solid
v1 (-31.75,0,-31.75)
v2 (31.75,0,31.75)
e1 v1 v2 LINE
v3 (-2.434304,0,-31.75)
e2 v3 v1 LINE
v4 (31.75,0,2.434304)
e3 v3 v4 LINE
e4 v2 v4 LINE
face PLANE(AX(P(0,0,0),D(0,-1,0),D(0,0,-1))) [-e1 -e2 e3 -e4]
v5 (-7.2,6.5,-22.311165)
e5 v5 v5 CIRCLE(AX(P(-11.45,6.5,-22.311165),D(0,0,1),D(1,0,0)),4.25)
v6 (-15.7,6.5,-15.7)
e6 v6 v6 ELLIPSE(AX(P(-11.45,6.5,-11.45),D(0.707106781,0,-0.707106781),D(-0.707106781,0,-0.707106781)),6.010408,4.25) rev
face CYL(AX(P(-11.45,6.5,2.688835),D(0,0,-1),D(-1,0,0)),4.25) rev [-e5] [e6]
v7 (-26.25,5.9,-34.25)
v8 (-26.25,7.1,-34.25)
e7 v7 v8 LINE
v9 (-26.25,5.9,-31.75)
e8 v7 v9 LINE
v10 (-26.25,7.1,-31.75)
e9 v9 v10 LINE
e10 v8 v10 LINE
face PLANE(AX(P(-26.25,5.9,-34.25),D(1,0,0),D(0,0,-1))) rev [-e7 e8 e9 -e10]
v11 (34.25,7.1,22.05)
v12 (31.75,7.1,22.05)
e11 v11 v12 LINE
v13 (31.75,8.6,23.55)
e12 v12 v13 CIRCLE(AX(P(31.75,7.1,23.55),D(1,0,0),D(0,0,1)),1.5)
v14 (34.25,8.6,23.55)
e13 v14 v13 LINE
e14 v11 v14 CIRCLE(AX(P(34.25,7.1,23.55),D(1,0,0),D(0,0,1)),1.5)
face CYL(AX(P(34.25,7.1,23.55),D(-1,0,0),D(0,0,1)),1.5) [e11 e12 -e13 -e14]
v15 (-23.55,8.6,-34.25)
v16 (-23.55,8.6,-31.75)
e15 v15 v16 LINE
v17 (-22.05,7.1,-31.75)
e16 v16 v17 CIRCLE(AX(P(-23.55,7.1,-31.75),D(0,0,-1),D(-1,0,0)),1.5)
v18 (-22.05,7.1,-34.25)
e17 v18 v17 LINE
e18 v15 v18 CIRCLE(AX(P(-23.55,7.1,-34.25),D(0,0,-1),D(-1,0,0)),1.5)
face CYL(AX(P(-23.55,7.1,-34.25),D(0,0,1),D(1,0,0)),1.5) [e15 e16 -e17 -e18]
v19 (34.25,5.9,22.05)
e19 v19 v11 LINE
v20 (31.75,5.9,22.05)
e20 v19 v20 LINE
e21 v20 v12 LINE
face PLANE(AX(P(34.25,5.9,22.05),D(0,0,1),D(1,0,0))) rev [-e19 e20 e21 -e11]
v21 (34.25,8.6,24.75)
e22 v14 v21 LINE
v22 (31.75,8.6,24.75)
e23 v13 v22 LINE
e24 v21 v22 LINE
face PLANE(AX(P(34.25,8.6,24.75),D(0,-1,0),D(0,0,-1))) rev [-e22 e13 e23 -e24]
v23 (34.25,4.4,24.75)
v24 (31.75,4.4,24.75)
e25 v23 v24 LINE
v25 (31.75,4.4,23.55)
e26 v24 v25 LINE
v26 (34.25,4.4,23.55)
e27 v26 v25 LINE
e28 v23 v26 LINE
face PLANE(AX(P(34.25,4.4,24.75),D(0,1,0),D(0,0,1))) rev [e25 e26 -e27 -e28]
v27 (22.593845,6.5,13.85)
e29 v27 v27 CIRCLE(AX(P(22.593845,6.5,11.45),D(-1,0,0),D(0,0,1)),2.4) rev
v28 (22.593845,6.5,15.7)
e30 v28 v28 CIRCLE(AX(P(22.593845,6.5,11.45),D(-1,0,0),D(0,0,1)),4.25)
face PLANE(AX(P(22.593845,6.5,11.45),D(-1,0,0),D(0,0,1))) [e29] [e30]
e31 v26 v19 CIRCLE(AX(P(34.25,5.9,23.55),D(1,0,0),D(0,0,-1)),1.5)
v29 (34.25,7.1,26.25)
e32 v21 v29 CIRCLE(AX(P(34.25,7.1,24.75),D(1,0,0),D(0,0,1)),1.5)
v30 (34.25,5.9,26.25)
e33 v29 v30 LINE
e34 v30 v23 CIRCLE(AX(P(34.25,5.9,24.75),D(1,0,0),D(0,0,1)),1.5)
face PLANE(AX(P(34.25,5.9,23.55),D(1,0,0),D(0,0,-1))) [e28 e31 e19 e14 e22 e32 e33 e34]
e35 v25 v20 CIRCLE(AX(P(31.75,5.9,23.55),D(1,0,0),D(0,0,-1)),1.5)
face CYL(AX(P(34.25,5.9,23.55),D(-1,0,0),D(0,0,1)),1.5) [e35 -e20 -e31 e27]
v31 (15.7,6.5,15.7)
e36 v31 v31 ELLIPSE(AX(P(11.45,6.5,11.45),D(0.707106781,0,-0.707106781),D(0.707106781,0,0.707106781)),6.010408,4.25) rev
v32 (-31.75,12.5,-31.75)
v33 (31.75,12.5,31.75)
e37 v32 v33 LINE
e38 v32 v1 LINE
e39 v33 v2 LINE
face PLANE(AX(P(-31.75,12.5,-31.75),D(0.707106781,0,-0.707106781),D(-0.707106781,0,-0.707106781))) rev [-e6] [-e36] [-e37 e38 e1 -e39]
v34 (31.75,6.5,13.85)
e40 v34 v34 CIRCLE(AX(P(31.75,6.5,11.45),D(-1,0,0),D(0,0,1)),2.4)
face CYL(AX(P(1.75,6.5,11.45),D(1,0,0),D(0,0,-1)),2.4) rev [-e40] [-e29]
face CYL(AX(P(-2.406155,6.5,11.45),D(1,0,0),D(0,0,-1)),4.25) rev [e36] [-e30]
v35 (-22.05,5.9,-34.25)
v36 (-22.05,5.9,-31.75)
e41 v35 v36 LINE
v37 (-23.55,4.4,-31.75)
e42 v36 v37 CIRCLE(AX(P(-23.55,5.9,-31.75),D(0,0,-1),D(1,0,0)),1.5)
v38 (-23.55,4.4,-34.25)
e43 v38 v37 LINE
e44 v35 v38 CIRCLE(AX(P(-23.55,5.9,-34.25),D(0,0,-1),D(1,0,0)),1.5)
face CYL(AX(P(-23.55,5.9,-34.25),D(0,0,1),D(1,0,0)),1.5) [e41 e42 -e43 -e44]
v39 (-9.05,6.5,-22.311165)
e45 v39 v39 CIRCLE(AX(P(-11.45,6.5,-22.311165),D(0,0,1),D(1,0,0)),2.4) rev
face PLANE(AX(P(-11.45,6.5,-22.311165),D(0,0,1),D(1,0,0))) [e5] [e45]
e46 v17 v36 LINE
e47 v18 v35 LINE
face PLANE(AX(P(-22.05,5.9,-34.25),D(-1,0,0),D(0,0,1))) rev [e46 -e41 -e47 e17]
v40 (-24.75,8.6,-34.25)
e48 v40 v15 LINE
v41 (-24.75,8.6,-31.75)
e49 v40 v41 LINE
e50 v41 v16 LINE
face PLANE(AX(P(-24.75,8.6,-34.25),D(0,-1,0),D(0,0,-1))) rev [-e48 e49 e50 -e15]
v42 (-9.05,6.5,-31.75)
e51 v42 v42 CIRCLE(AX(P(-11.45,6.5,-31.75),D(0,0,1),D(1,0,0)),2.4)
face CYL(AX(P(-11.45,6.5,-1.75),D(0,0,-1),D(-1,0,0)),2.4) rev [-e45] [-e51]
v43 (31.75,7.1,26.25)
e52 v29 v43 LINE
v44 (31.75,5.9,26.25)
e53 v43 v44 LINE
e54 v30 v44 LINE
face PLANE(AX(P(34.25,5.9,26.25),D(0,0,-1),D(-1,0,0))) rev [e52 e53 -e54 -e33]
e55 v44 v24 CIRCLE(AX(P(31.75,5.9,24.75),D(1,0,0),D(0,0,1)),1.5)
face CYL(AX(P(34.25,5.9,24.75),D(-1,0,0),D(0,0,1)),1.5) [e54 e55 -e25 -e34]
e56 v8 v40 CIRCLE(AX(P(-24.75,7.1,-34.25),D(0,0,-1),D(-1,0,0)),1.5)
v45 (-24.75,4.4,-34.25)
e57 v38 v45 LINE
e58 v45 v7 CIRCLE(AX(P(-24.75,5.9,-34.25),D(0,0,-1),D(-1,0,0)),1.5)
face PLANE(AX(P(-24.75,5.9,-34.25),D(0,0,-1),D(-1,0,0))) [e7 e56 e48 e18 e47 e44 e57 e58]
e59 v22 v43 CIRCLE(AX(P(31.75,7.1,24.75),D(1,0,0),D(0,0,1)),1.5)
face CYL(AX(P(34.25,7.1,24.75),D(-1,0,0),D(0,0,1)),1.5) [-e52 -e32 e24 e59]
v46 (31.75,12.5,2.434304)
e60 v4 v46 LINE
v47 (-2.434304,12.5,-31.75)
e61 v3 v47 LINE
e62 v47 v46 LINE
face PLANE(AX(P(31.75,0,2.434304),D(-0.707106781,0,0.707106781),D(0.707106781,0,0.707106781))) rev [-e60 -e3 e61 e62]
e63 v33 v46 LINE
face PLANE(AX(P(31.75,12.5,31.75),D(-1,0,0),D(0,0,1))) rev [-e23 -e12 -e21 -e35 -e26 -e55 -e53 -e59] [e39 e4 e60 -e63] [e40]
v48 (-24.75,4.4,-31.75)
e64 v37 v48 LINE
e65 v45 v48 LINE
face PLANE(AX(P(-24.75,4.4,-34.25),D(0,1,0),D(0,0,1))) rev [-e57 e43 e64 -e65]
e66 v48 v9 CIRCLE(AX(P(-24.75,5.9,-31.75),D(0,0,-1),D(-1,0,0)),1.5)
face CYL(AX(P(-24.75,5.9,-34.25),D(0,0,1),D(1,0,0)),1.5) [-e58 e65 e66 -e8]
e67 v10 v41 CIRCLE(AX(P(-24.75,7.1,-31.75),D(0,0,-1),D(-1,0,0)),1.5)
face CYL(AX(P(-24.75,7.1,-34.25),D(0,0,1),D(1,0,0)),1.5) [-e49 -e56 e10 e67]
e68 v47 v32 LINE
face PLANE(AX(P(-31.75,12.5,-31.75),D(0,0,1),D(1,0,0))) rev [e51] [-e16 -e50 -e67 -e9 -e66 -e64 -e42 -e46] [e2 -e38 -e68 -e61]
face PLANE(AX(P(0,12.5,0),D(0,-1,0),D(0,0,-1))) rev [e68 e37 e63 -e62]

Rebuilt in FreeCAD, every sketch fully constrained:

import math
import FreeCAD as App
import Part
import Sketcher
from FreeCAD import Vector
Q = App.Units.Quantity


def add_polygon(sketch, points):
    """Adds a closed chain of lines whose ends are joined by coincident constraints."""
    first, n = sketch.GeometryCount, len(points)
    for a, b in zip(points, points[1:] + points[:1]):
        sketch.addGeometry(Part.LineSegment(App.Vector(*a, 0), App.Vector(*b, 0)), False)
    for i in range(n):
        sketch.addConstraint(Sketcher.Constraint("Coincident", first + i, 2, first + (i + 1) % n, 1))

doc = App.newDocument("Part")
params = doc.addObject("Spreadsheet::Sheet", "Params")
for row, (alias, value) in enumerate([
    ("sketch1_width", "63.5 mm"),
    ("pad1_length", "12.5 mm"),
    ("sketch2_radius", "1.5 mm"),
    ("sketch2_width", "1.2 mm"),
    ("pad2_length", "2.5 mm"),
    ("sketch3_radius", "1.5 mm"),
    ("sketch3_width", "1.2 mm"),
    ("pad3_length", "2.5 mm"),
    ("sketch5_diameter", "4.8 mm"),
    ("pocket2_length", "32.5 mm"),
    ("sketch6_diameter", "4.8 mm"),
    ("pocket3_length", "32.5 mm"),
    ("sketch7_diameter", "8.5 mm"),
    ("pocket4_length", "12.5 mm"),
    ("pocket4_length2", "12.5 mm"),
    ("sketch8_diameter", "8.5 mm"),
    ("pocket5_length", "12.5 mm"),
    ("pocket5_length2", "12.5 mm"),
], start=1):
    params.set(f"A{row}", alias)
    params.set(f"B{row}", "=" + value)
    params.setAlias(f"B{row}", alias)

body = doc.addObject("PartDesign::Body", "Body")

# Sketch on XZ plane
sketch1 = body.newObject("Sketcher::SketchObject", "Sketch")
sketch1.AttachmentSupport = (doc.getObject("XZ_Plane"), [""])
sketch1.MapMode = "FlatFace"
add_polygon(sketch1, [(-32, -32), (32, 32), (32, -32)])  # lines 0-2
sketch1.addConstraint(Sketcher.Constraint("Vertical", 1))
sketch1.addConstraint(Sketcher.Constraint("Horizontal", 2))
sketch1.addConstraint(Sketcher.Constraint("Symmetric", 0, 2, 2, 2, -1, 1))
sketch1.addConstraint(Sketcher.Constraint("Equal", 2, 1))
sketch1.addConstraint(Sketcher.Constraint("DistanceX", 2, 2, 2, 1, Q("63.5 mm")))
sketch1.setExpression("Constraints[7]", "Params.sketch1_width")
pad1 = body.newObject("PartDesign::Pad", "Pad")
pad1.Profile = sketch1
pad1.setExpression("Length", "Params.pad1_length")
pad1.Reversed = True

# Sketch on YZ plane
sketch2 = body.newObject("Sketcher::SketchObject", "Sketch001")
sketch2.AttachmentSupport = (doc.getObject("YZ_Plane"), [""])
sketch2.MapMode = "FlatFace"
sketch2.AttachmentOffset = App.Placement(Vector(0, 0, 31.75), App.Rotation())
sketch2.addGeometry(Part.LineSegment(Vector(4.4, -26.1, 0), Vector(4.4, -27.2, 0)), False)
sketch2.addGeometry(Part.ArcOfCircle(Part.Circle(Vector(5.9, -27.3, 0), Vector(0, 0, 1), 1.5), math.radians(180), math.radians(270)), False)
sketch2.addGeometry(Part.LineSegment(Vector(5.9, -28.8, 0), Vector(7.1, -28.8, 0)), False)
sketch2.addGeometry(Part.ArcOfCircle(Part.Circle(Vector(7.1, -27.3, 0), Vector(0, 0, 1), 1.5), math.radians(-90), math.radians(0)), False)
sketch2.addGeometry(Part.LineSegment(Vector(8.6, -27.2, 0), Vector(8.6, -26.1, 0)), False)
sketch2.addGeometry(Part.ArcOfCircle(Part.Circle(Vector(7.1, -26, 0), Vector(0, 0, 1), 1.5), math.radians(0), math.radians(90)), False)
sketch2.addGeometry(Part.LineSegment(Vector(7.1, -24.6, 0), Vector(5.9, -24.6, 0)), False)
sketch2.addGeometry(Part.ArcOfCircle(Part.Circle(Vector(5.9, -26, 0), Vector(0, 0, 1), 1.5), math.radians(90), math.radians(180)), False)
sketch2.addGeometry(Part.LineSegment(Vector(7.1, -11.8, 0), Vector(5.9, -11.8, 0)), False)
sketch2.addGeometry(Part.ArcOfCircle(Part.Circle(Vector(5.9, -13.3, 0), Vector(0, 0, 1), 1.5), math.radians(90), math.radians(180)), False)
sketch2.addGeometry(Part.LineSegment(Vector(4.4, -13.3, 0), Vector(4.4, -14.6, 0)), False)
sketch2.addGeometry(Part.ArcOfCircle(Part.Circle(Vector(5.9, -14.6, 0), Vector(0, 0, 1), 1.5), math.radians(180), math.radians(270)), False)
sketch2.addGeometry(Part.LineSegment(Vector(5.9, -16.1, 0), Vector(7.1, -16.1, 0)), False)
sketch2.addGeometry(Part.ArcOfCircle(Part.Circle(Vector(7.1, -14.6, 0), Vector(0, 0, 1), 1.5), math.radians(-90), math.radians(0)), False)
sketch2.addGeometry(Part.LineSegment(Vector(8.6, -14.6, 0), Vector(8.6, -13.3, 0)), False)
sketch2.addGeometry(Part.ArcOfCircle(Part.Circle(Vector(7.1, -13.3, 0), Vector(0, 0, 1), 1.5), math.radians(0), math.radians(90)), False)
sketch2.addGeometry(Part.LineSegment(Vector(7.1, 0.8, 0), Vector(5.9, 0.8, 0)), False)
sketch2.addGeometry(Part.ArcOfCircle(Part.Circle(Vector(5.9, -0.6, 0), Vector(0, 0, 1), 1.5), math.radians(90), math.radians(180)), False)
sketch2.addGeometry(Part.LineSegment(Vector(4.4, -0.7, 0), Vector(4.4, -1.9, 0)), False)
sketch2.addGeometry(Part.ArcOfCircle(Part.Circle(Vector(5.9, -1.9, 0), Vector(0, 0, 1), 1.5), math.radians(180), math.radians(270)), False)
sketch2.addGeometry(Part.LineSegment(Vector(5.9, -3.4, 0), Vector(7.1, -3.4, 0)), False)
sketch2.addGeometry(Part.ArcOfCircle(Part.Circle(Vector(7.1, -1.9, 0), Vector(0, 0, 1), 1.5), math.radians(-90), math.radians(0)), False)
sketch2.addGeometry(Part.LineSegment(Vector(8.6, -1.9, 0), Vector(8.6, -0.7, 0)), False)
sketch2.addGeometry(Part.ArcOfCircle(Part.Circle(Vector(7.1, -0.6, 0), Vector(0, 0, 1), 1.5), math.radians(0), math.radians(90)), False)
sketch2.addGeometry(Part.LineSegment(Vector(7.1, 13.6, 0), Vector(5.9, 13.6, 0)), False)
sketch2.addGeometry(Part.ArcOfCircle(Part.Circle(Vector(5.9, 12.1, 0), Vector(0, 0, 1), 1.5), math.radians(90), math.radians(180)), False)
sketch2.addGeometry(Part.LineSegment(Vector(4.4, 12.1, 0), Vector(4.4, 10.8, 0)), False)
sketch2.addGeometry(Part.ArcOfCircle(Part.Circle(Vector(5.9, 10.8, 0), Vector(0, 0, 1), 1.5), math.radians(180), math.radians(270)), False)
sketch2.addGeometry(Part.LineSegment(Vector(5.9, 9.3, 0), Vector(7.1, 9.3, 0)), False)
sketch2.addGeometry(Part.ArcOfCircle(Part.Circle(Vector(7.1, 10.8, 0), Vector(0, 0, 1), 1.5), math.radians(-90), math.radians(0)), False)
sketch2.addGeometry(Part.LineSegment(Vector(8.6, 10.8, 0), Vector(8.6, 12.1, 0)), False)
sketch2.addGeometry(Part.ArcOfCircle(Part.Circle(Vector(7.1, 12.1, 0), Vector(0, 0, 1), 1.5), math.radians(0), math.radians(90)), False)
sketch2.addGeometry(Part.LineSegment(Vector(7.1, 26.2, 0), Vector(5.9, 26.2, 0)), False)
sketch2.addGeometry(Part.ArcOfCircle(Part.Circle(Vector(5.9, 24.8, 0), Vector(0, 0, 1), 1.5), math.radians(90), math.radians(180)), False)
sketch2.addGeometry(Part.LineSegment(Vector(4.4, 24.8, 0), Vector(4.4, 23.6, 0)), False)
sketch2.addGeometry(Part.ArcOfCircle(Part.Circle(Vector(5.9, 23.5, 0), Vector(0, 0, 1), 1.5), math.radians(180), math.radians(270)), False)
sketch2.addGeometry(Part.LineSegment(Vector(5.9, 22.1, 0), Vector(7.1, 22.1, 0)), False)
sketch2.addGeometry(Part.ArcOfCircle(Part.Circle(Vector(7.1, 23.5, 0), Vector(0, 0, 1), 1.5), math.radians(-90), math.radians(0)), False)
sketch2.addGeometry(Part.LineSegment(Vector(8.6, 23.6, 0), Vector(8.6, 24.8, 0)), False)
sketch2.addGeometry(Part.ArcOfCircle(Part.Circle(Vector(7.1, 24.8, 0), Vector(0, 0, 1), 1.5), math.radians(0), math.radians(90)), False)
sketch2.addConstraint(Sketcher.Constraint("Tangent", 0, 2, 1, 1))
sketch2.addConstraint(Sketcher.Constraint("Tangent", 1, 2, 2, 1))
sketch2.addConstraint(Sketcher.Constraint("Tangent", 2, 2, 3, 1))
sketch2.addConstraint(Sketcher.Constraint("Tangent", 3, 2, 4, 1))
sketch2.addConstraint(Sketcher.Constraint("Tangent", 4, 2, 5, 1))
sketch2.addConstraint(Sketcher.Constraint("Tangent", 5, 2, 6, 1))
sketch2.addConstraint(Sketcher.Constraint("Tangent", 6, 2, 7, 1))
sketch2.addConstraint(Sketcher.Constraint("Tangent", 7, 2, 0, 1))
sketch2.addConstraint(Sketcher.Constraint("Tangent", 8, 2, 9, 1))
sketch2.addConstraint(Sketcher.Constraint("Tangent", 9, 2, 10, 1))
sketch2.addConstraint(Sketcher.Constraint("Tangent", 10, 2, 11, 1))
sketch2.addConstraint(Sketcher.Constraint("Tangent", 11, 2, 12, 1))
sketch2.addConstraint(Sketcher.Constraint("Tangent", 12, 2, 13, 1))
sketch2.addConstraint(Sketcher.Constraint("Tangent", 13, 2, 14, 1))
sketch2.addConstraint(Sketcher.Constraint("Tangent", 14, 2, 15, 1))
sketch2.addConstraint(Sketcher.Constraint("Tangent", 15, 2, 8, 1))
sketch2.addConstraint(Sketcher.Constraint("Tangent", 16, 2, 17, 1))
sketch2.addConstraint(Sketcher.Constraint("Tangent", 17, 2, 18, 1))
sketch2.addConstraint(Sketcher.Constraint("Tangent", 18, 2, 19, 1))
sketch2.addConstraint(Sketcher.Constraint("Tangent", 19, 2, 20, 1))
sketch2.addConstraint(Sketcher.Constraint("Tangent", 20, 2, 21, 1))
sketch2.addConstraint(Sketcher.Constraint("Tangent", 21, 2, 22, 1))
sketch2.addConstraint(Sketcher.Constraint("Tangent", 22, 2, 23, 1))
sketch2.addConstraint(Sketcher.Constraint("Tangent", 23, 2, 16, 1))
sketch2.addConstraint(Sketcher.Constraint("Tangent", 24, 2, 25, 1))
sketch2.addConstraint(Sketcher.Constraint("Tangent", 25, 2, 26, 1))
sketch2.addConstraint(Sketcher.Constraint("Tangent", 26, 2, 27, 1))
sketch2.addConstraint(Sketcher.Constraint("Tangent", 27, 2, 28, 1))
sketch2.addConstraint(Sketcher.Constraint("Tangent", 28, 2, 29, 1))
sketch2.addConstraint(Sketcher.Constraint("Tangent", 29, 2, 30, 1))
sketch2.addConstraint(Sketcher.Constraint("Tangent", 30, 2, 31, 1))
sketch2.addConstraint(Sketcher.Constraint("Tangent", 31, 2, 24, 1))
sketch2.addConstraint(Sketcher.Constraint("Tangent", 32, 2, 33, 1))
sketch2.addConstraint(Sketcher.Constraint("Tangent", 33, 2, 34, 1))
sketch2.addConstraint(Sketcher.Constraint("Tangent", 34, 2, 35, 1))
sketch2.addConstraint(Sketcher.Constraint("Tangent", 35, 2, 36, 1))
sketch2.addConstraint(Sketcher.Constraint("Tangent", 36, 2, 37, 1))
sketch2.addConstraint(Sketcher.Constraint("Tangent", 37, 2, 38, 1))
sketch2.addConstraint(Sketcher.Constraint("Tangent", 38, 2, 39, 1))
sketch2.addConstraint(Sketcher.Constraint("Tangent", 39, 2, 32, 1))
sketch2.addConstraint(Sketcher.Constraint("Vertical", 0))
sketch2.addConstraint(Sketcher.Constraint("Horizontal", 2))
sketch2.addConstraint(Sketcher.Constraint("Vertical", 4))
sketch2.addConstraint(Sketcher.Constraint("Horizontal", 6))
sketch2.addConstraint(Sketcher.Constraint("Horizontal", 8))
sketch2.addConstraint(Sketcher.Constraint("Vertical", 10))
sketch2.addConstraint(Sketcher.Constraint("Horizontal", 12))
sketch2.addConstraint(Sketcher.Constraint("Vertical", 14))
sketch2.addConstraint(Sketcher.Constraint("Horizontal", 16))
sketch2.addConstraint(Sketcher.Constraint("Vertical", 18))
sketch2.addConstraint(Sketcher.Constraint("Horizontal", 20))
sketch2.addConstraint(Sketcher.Constraint("Vertical", 22))
sketch2.addConstraint(Sketcher.Constraint("Horizontal", 24))
sketch2.addConstraint(Sketcher.Constraint("Vertical", 26))
sketch2.addConstraint(Sketcher.Constraint("Horizontal", 28))
sketch2.addConstraint(Sketcher.Constraint("Vertical", 30))
sketch2.addConstraint(Sketcher.Constraint("Horizontal", 32))
sketch2.addConstraint(Sketcher.Constraint("Vertical", 34))
sketch2.addConstraint(Sketcher.Constraint("Horizontal", 36))
sketch2.addConstraint(Sketcher.Constraint("Vertical", 38))
sketch2.addConstraint(Sketcher.Constraint("Equal", 1, 3))
sketch2.addConstraint(Sketcher.Constraint("Equal", 3, 5))
sketch2.addConstraint(Sketcher.Constraint("Equal", 5, 7))
sketch2.addConstraint(Sketcher.Constraint("Equal", 7, 9))
sketch2.addConstraint(Sketcher.Constraint("Equal", 9, 11))
sketch2.addConstraint(Sketcher.Constraint("Equal", 11, 13))
sketch2.addConstraint(Sketcher.Constraint("Equal", 13, 15))
sketch2.addConstraint(Sketcher.Constraint("Equal", 15, 17))
sketch2.addConstraint(Sketcher.Constraint("Equal", 17, 19))
sketch2.addConstraint(Sketcher.Constraint("Equal", 19, 21))
sketch2.addConstraint(Sketcher.Constraint("Equal", 21, 23))
sketch2.addConstraint(Sketcher.Constraint("Equal", 23, 25))
sketch2.addConstraint(Sketcher.Constraint("Equal", 25, 27))
sketch2.addConstraint(Sketcher.Constraint("Equal", 27, 29))
sketch2.addConstraint(Sketcher.Constraint("Equal", 29, 31))
sketch2.addConstraint(Sketcher.Constraint("Equal", 31, 33))
sketch2.addConstraint(Sketcher.Constraint("Equal", 33, 35))
sketch2.addConstraint(Sketcher.Constraint("Equal", 35, 37))
sketch2.addConstraint(Sketcher.Constraint("Equal", 37, 39))
sketch2.addConstraint(Sketcher.Constraint("Vertical", 7, 3, 9, 3))
sketch2.addConstraint(Sketcher.Constraint("Vertical", 5, 3, 13, 3))
sketch2.addConstraint(Sketcher.Constraint("Vertical", 11, 3, 17, 3))
sketch2.addConstraint(Sketcher.Constraint("Vertical", 15, 3, 21, 3))
sketch2.addConstraint(Sketcher.Constraint("Vertical", 19, 3, 25, 3))
sketch2.addConstraint(Sketcher.Constraint("Vertical", 23, 3, 29, 3))
sketch2.addConstraint(Sketcher.Constraint("Vertical", 27, 3, 33, 3))
sketch2.addConstraint(Sketcher.Constraint("Vertical", 31, 3, 37, 3))
sketch2.addConstraint(Sketcher.Constraint("Equal", 36, 0))
sketch2.addConstraint(Sketcher.Constraint("Equal", 4, 10))
sketch2.addConstraint(Sketcher.Constraint("Equal", 14, 18))
sketch2.addConstraint(Sketcher.Constraint("Equal", 22, 26))
sketch2.addConstraint(Sketcher.Constraint("Equal", 30, 34))
sketch2.addConstraint(Sketcher.Constraint("Radius", 1, Q("1.5 mm")))
sketch2.addConstraint(Sketcher.Constraint("DistanceX", 2, 1, 2, 2, Q("1.2 mm")))
sketch2.addConstraint(Sketcher.Constraint("DistanceY", 8, 2, 19, 3, Q("10 mm")))
sketch2.addConstraint(Sketcher.Constraint("DistanceY", 16, 2, 27, 3, Q("10 mm")))
sketch2.addConstraint(Sketcher.Constraint("DistanceY", 24, 2, 35, 3, Q("10 mm")))
sketch2.addConstraint(Sketcher.Constraint("DistanceX", -1, 1, 1, 3, Q("5.9 mm")))
sketch2.addConstraint(Sketcher.Constraint("DistanceY", 7, 3, 9, 3, Q("12.7 mm")))
sketch2.addConstraint(Sketcher.Constraint("DistanceY", 1, 3, -1, 1, Q("27.25 mm")))
sketch2.setExpression("Constraints[92]", "Params.sketch2_radius")
sketch2.setExpression("Constraints[93]", "Params.sketch2_width")
pad2 = body.newObject("PartDesign::Pad", "Pad001")
pad2.Profile = sketch2
pad2.setExpression("Length", "Params.pad2_length")

# Sketch on XY plane
sketch3 = body.newObject("Sketcher::SketchObject", "Sketch002")
sketch3.AttachmentSupport = (doc.getObject("XY_Plane"), [""])
sketch3.MapMode = "FlatFace"
sketch3.AttachmentOffset = App.Placement(Vector(0, 0, -31.75), App.Rotation())
sketch3.addGeometry(Part.LineSegment(Vector(27.2, 4.4, 0), Vector(26.1, 4.4, 0)), False)
sketch3.addGeometry(Part.ArcOfCircle(Part.Circle(Vector(26, 5.9, 0), Vector(0, 0, 1), 1.5), math.radians(180), math.radians(270)), False)
sketch3.addGeometry(Part.LineSegment(Vector(24.6, 5.9, 0), Vector(24.6, 7.1, 0)), False)
sketch3.addGeometry(Part.ArcOfCircle(Part.Circle(Vector(26, 7.1, 0), Vector(0, 0, 1), 1.5), math.radians(90), math.radians(180)), False)
sketch3.addGeometry(Part.LineSegment(Vector(26.1, 8.6, 0), Vector(27.2, 8.6, 0)), False)
sketch3.addGeometry(Part.ArcOfCircle(Part.Circle(Vector(27.3, 7.1, 0), Vector(0, 0, 1), 1.5), math.radians(0), math.radians(90)), False)
sketch3.addGeometry(Part.LineSegment(Vector(28.8, 7.1, 0), Vector(28.8, 5.9, 0)), False)
sketch3.addGeometry(Part.ArcOfCircle(Part.Circle(Vector(27.3, 5.9, 0), Vector(0, 0, 1), 1.5), math.radians(-90), math.radians(0)), False)
sketch3.addGeometry(Part.LineSegment(Vector(11.8, 5.9, 0), Vector(11.8, 7.1, 0)), False)
sketch3.addGeometry(Part.ArcOfCircle(Part.Circle(Vector(13.3, 7.1, 0), Vector(0, 0, 1), 1.5), math.radians(90), math.radians(180)), False)
sketch3.addGeometry(Part.LineSegment(Vector(13.3, 8.6, 0), Vector(14.6, 8.6, 0)), False)
sketch3.addGeometry(Part.ArcOfCircle(Part.Circle(Vector(14.6, 7.1, 0), Vector(0, 0, 1), 1.5), math.radians(0), math.radians(90)), False)
sketch3.addGeometry(Part.LineSegment(Vector(16.1, 7.1, 0), Vector(16.1, 5.9, 0)), False)
sketch3.addGeometry(Part.ArcOfCircle(Part.Circle(Vector(14.6, 5.9, 0), Vector(0, 0, 1), 1.5), math.radians(-90), math.radians(0)), False)
sketch3.addGeometry(Part.LineSegment(Vector(14.6, 4.4, 0), Vector(13.3, 4.4, 0)), False)
sketch3.addGeometry(Part.ArcOfCircle(Part.Circle(Vector(13.3, 5.9, 0), Vector(0, 0, 1), 1.5), math.radians(180), math.radians(270)), False)
sketch3.addGeometry(Part.LineSegment(Vector(-0.8, 5.9, 0), Vector(-0.8, 7.1, 0)), False)
sketch3.addGeometry(Part.ArcOfCircle(Part.Circle(Vector(0.6, 7.1, 0), Vector(0, 0, 1), 1.5), math.radians(90), math.radians(180)), False)
sketch3.addGeometry(Part.LineSegment(Vector(0.7, 8.6, 0), Vector(1.9, 8.6, 0)), False)
sketch3.addGeometry(Part.ArcOfCircle(Part.Circle(Vector(1.9, 7.1, 0), Vector(0, 0, 1), 1.5), math.radians(0), math.radians(90)), False)
sketch3.addGeometry(Part.LineSegment(Vector(3.4, 7.1, 0), Vector(3.4, 5.9, 0)), False)
sketch3.addGeometry(Part.ArcOfCircle(Part.Circle(Vector(1.9, 5.9, 0), Vector(0, 0, 1), 1.5), math.radians(-90), math.radians(0)), False)
sketch3.addGeometry(Part.LineSegment(Vector(1.9, 4.4, 0), Vector(0.7, 4.4, 0)), False)
sketch3.addGeometry(Part.ArcOfCircle(Part.Circle(Vector(0.6, 5.9, 0), Vector(0, 0, 1), 1.5), math.radians(180), math.radians(270)), False)
sketch3.addGeometry(Part.LineSegment(Vector(-13.6, 5.9, 0), Vector(-13.6, 7.1, 0)), False)
sketch3.addGeometry(Part.ArcOfCircle(Part.Circle(Vector(-12.1, 7.1, 0), Vector(0, 0, 1), 1.5), math.radians(90), math.radians(180)), False)
sketch3.addGeometry(Part.LineSegment(Vector(-12.1, 8.6, 0), Vector(-10.8, 8.6, 0)), False)
sketch3.addGeometry(Part.ArcOfCircle(Part.Circle(Vector(-10.8, 7.1, 0), Vector(0, 0, 1), 1.5), math.radians(0), math.radians(90)), False)
sketch3.addGeometry(Part.LineSegment(Vector(-9.3, 7.1, 0), Vector(-9.3, 5.9, 0)), False)
sketch3.addGeometry(Part.ArcOfCircle(Part.Circle(Vector(-10.8, 5.9, 0), Vector(0, 0, 1), 1.5), math.radians(-90), math.radians(0)), False)
sketch3.addGeometry(Part.LineSegment(Vector(-10.8, 4.4, 0), Vector(-12.1, 4.4, 0)), False)
sketch3.addGeometry(Part.ArcOfCircle(Part.Circle(Vector(-12.1, 5.9, 0), Vector(0, 0, 1), 1.5), math.radians(180), math.radians(270)), False)
sketch3.addGeometry(Part.LineSegment(Vector(-26.2, 5.9, 0), Vector(-26.2, 7.1, 0)), False)
sketch3.addGeometry(Part.ArcOfCircle(Part.Circle(Vector(-24.8, 7.1, 0), Vector(0, 0, 1), 1.5), math.radians(90), math.radians(180)), False)
sketch3.addGeometry(Part.LineSegment(Vector(-24.8, 8.6, 0), Vector(-23.6, 8.6, 0)), False)
sketch3.addGeometry(Part.ArcOfCircle(Part.Circle(Vector(-23.5, 7.1, 0), Vector(0, 0, 1), 1.5), math.radians(0), math.radians(90)), False)
sketch3.addGeometry(Part.LineSegment(Vector(-22.1, 7.1, 0), Vector(-22.1, 5.9, 0)), False)
sketch3.addGeometry(Part.ArcOfCircle(Part.Circle(Vector(-23.5, 5.9, 0), Vector(0, 0, 1), 1.5), math.radians(-90), math.radians(0)), False)
sketch3.addGeometry(Part.LineSegment(Vector(-23.6, 4.4, 0), Vector(-24.8, 4.4, 0)), False)
sketch3.addGeometry(Part.ArcOfCircle(Part.Circle(Vector(-24.8, 5.9, 0), Vector(0, 0, 1), 1.5), math.radians(180), math.radians(270)), False)
sketch3.addConstraint(Sketcher.Constraint("Tangent", 0, 2, 1, 2))
sketch3.addConstraint(Sketcher.Constraint("Tangent", 1, 1, 2, 1))
sketch3.addConstraint(Sketcher.Constraint("Tangent", 2, 2, 3, 2))
sketch3.addConstraint(Sketcher.Constraint("Tangent", 3, 1, 4, 1))
sketch3.addConstraint(Sketcher.Constraint("Tangent", 4, 2, 5, 2))
sketch3.addConstraint(Sketcher.Constraint("Tangent", 5, 1, 6, 1))
sketch3.addConstraint(Sketcher.Constraint("Tangent", 6, 2, 7, 2))
sketch3.addConstraint(Sketcher.Constraint("Tangent", 7, 1, 0, 1))
sketch3.addConstraint(Sketcher.Constraint("Tangent", 8, 2, 9, 2))
sketch3.addConstraint(Sketcher.Constraint("Tangent", 9, 1, 10, 1))
sketch3.addConstraint(Sketcher.Constraint("Tangent", 10, 2, 11, 2))
sketch3.addConstraint(Sketcher.Constraint("Tangent", 11, 1, 12, 1))
sketch3.addConstraint(Sketcher.Constraint("Tangent", 12, 2, 13, 2))
sketch3.addConstraint(Sketcher.Constraint("Tangent", 13, 1, 14, 1))
sketch3.addConstraint(Sketcher.Constraint("Tangent", 14, 2, 15, 2))
sketch3.addConstraint(Sketcher.Constraint("Tangent", 15, 1, 8, 1))
sketch3.addConstraint(Sketcher.Constraint("Tangent", 16, 2, 17, 2))
sketch3.addConstraint(Sketcher.Constraint("Tangent", 17, 1, 18, 1))
sketch3.addConstraint(Sketcher.Constraint("Tangent", 18, 2, 19, 2))
sketch3.addConstraint(Sketcher.Constraint("Tangent", 19, 1, 20, 1))
sketch3.addConstraint(Sketcher.Constraint("Tangent", 20, 2, 21, 2))
sketch3.addConstraint(Sketcher.Constraint("Tangent", 21, 1, 22, 1))
sketch3.addConstraint(Sketcher.Constraint("Tangent", 22, 2, 23, 2))
sketch3.addConstraint(Sketcher.Constraint("Tangent", 23, 1, 16, 1))
sketch3.addConstraint(Sketcher.Constraint("Tangent", 24, 2, 25, 2))
sketch3.addConstraint(Sketcher.Constraint("Tangent", 25, 1, 26, 1))
sketch3.addConstraint(Sketcher.Constraint("Tangent", 26, 2, 27, 2))
sketch3.addConstraint(Sketcher.Constraint("Tangent", 27, 1, 28, 1))
sketch3.addConstraint(Sketcher.Constraint("Tangent", 28, 2, 29, 2))
sketch3.addConstraint(Sketcher.Constraint("Tangent", 29, 1, 30, 1))
sketch3.addConstraint(Sketcher.Constraint("Tangent", 30, 2, 31, 2))
sketch3.addConstraint(Sketcher.Constraint("Tangent", 31, 1, 24, 1))
sketch3.addConstraint(Sketcher.Constraint("Tangent", 32, 2, 33, 2))
sketch3.addConstraint(Sketcher.Constraint("Tangent", 33, 1, 34, 1))
sketch3.addConstraint(Sketcher.Constraint("Tangent", 34, 2, 35, 2))
sketch3.addConstraint(Sketcher.Constraint("Tangent", 35, 1, 36, 1))
sketch3.addConstraint(Sketcher.Constraint("Tangent", 36, 2, 37, 2))
sketch3.addConstraint(Sketcher.Constraint("Tangent", 37, 1, 38, 1))
sketch3.addConstraint(Sketcher.Constraint("Tangent", 38, 2, 39, 2))
sketch3.addConstraint(Sketcher.Constraint("Tangent", 39, 1, 32, 1))
sketch3.addConstraint(Sketcher.Constraint("Horizontal", 0))
sketch3.addConstraint(Sketcher.Constraint("Vertical", 2))
sketch3.addConstraint(Sketcher.Constraint("Horizontal", 4))
sketch3.addConstraint(Sketcher.Constraint("Vertical", 6))
sketch3.addConstraint(Sketcher.Constraint("Vertical", 8))
sketch3.addConstraint(Sketcher.Constraint("Horizontal", 10))
sketch3.addConstraint(Sketcher.Constraint("Vertical", 12))
sketch3.addConstraint(Sketcher.Constraint("Horizontal", 14))
sketch3.addConstraint(Sketcher.Constraint("Vertical", 16))
sketch3.addConstraint(Sketcher.Constraint("Horizontal", 18))
sketch3.addConstraint(Sketcher.Constraint("Vertical", 20))
sketch3.addConstraint(Sketcher.Constraint("Horizontal", 22))
sketch3.addConstraint(Sketcher.Constraint("Vertical", 24))
sketch3.addConstraint(Sketcher.Constraint("Horizontal", 26))
sketch3.addConstraint(Sketcher.Constraint("Vertical", 28))
sketch3.addConstraint(Sketcher.Constraint("Horizontal", 30))
sketch3.addConstraint(Sketcher.Constraint("Vertical", 32))
sketch3.addConstraint(Sketcher.Constraint("Horizontal", 34))
sketch3.addConstraint(Sketcher.Constraint("Vertical", 36))
sketch3.addConstraint(Sketcher.Constraint("Horizontal", 38))
sketch3.addConstraint(Sketcher.Constraint("Equal", 1, 3))
sketch3.addConstraint(Sketcher.Constraint("Equal", 3, 5))
sketch3.addConstraint(Sketcher.Constraint("Equal", 5, 7))
sketch3.addConstraint(Sketcher.Constraint("Equal", 7, 9))
sketch3.addConstraint(Sketcher.Constraint("Equal", 9, 11))
sketch3.addConstraint(Sketcher.Constraint("Equal", 11, 13))
sketch3.addConstraint(Sketcher.Constraint("Equal", 13, 15))
sketch3.addConstraint(Sketcher.Constraint("Equal", 15, 17))
sketch3.addConstraint(Sketcher.Constraint("Equal", 17, 19))
sketch3.addConstraint(Sketcher.Constraint("Equal", 19, 21))
sketch3.addConstraint(Sketcher.Constraint("Equal", 21, 23))
sketch3.addConstraint(Sketcher.Constraint("Equal", 23, 25))
sketch3.addConstraint(Sketcher.Constraint("Equal", 25, 27))
sketch3.addConstraint(Sketcher.Constraint("Equal", 27, 29))
sketch3.addConstraint(Sketcher.Constraint("Equal", 29, 31))
sketch3.addConstraint(Sketcher.Constraint("Equal", 31, 33))
sketch3.addConstraint(Sketcher.Constraint("Equal", 33, 35))
sketch3.addConstraint(Sketcher.Constraint("Equal", 35, 37))
sketch3.addConstraint(Sketcher.Constraint("Equal", 37, 39))
sketch3.addConstraint(Sketcher.Constraint("Horizontal", 5, 3, 9, 3))
sketch3.addConstraint(Sketcher.Constraint("Horizontal", 7, 3, 13, 3))
sketch3.addConstraint(Sketcher.Constraint("Horizontal", 11, 3, 17, 3))
sketch3.addConstraint(Sketcher.Constraint("Horizontal", 15, 3, 21, 3))
sketch3.addConstraint(Sketcher.Constraint("Horizontal", 19, 3, 25, 3))
sketch3.addConstraint(Sketcher.Constraint("Horizontal", 23, 3, 29, 3))
sketch3.addConstraint(Sketcher.Constraint("Horizontal", 27, 3, 33, 3))
sketch3.addConstraint(Sketcher.Constraint("Horizontal", 31, 3, 37, 3))
sketch3.addConstraint(Sketcher.Constraint("Equal", 4, 10))
sketch3.addConstraint(Sketcher.Constraint("Equal", 14, 18))
sketch3.addConstraint(Sketcher.Constraint("Equal", 22, 26))
sketch3.addConstraint(Sketcher.Constraint("Equal", 30, 34))
sketch3.addConstraint(Sketcher.Constraint("Equal", 38, 2))
sketch3.addConstraint(Sketcher.Constraint("Radius", 1, Q("1.5 mm")))
sketch3.addConstraint(Sketcher.Constraint("DistanceX", 0, 2, 0, 1, Q("1.2 mm")))
sketch3.addConstraint(Sketcher.Constraint("DistanceX", 19, 3, 8, 2, Q("10 mm")))
sketch3.addConstraint(Sketcher.Constraint("DistanceX", 27, 3, 16, 2, Q("10 mm")))
sketch3.addConstraint(Sketcher.Constraint("DistanceX", 35, 3, 24, 2, Q("10 mm")))
sketch3.addConstraint(Sketcher.Constraint("DistanceY", -1, 1, 1, 3, Q("5.9 mm")))
sketch3.addConstraint(Sketcher.Constraint("DistanceX", 9, 3, 3, 3, Q("12.7 mm")))
sketch3.addConstraint(Sketcher.Constraint("DistanceX", -1, 1, 1, 3, Q("26.05 mm")))
sketch3.setExpression("Constraints[92]", "Params.sketch3_radius")
sketch3.setExpression("Constraints[93]", "Params.sketch3_width")
pad3 = body.newObject("PartDesign::Pad", "Pad002")
pad3.Profile = sketch3
pad3.setExpression("Length", "Params.pad3_length")
pad3.Reversed = True

# Sketch on XZ plane
sketch4 = body.newObject("Sketcher::SketchObject", "Sketch003")
sketch4.AttachmentSupport = (doc.getObject("XZ_Plane"), [""])
sketch4.MapMode = "FlatFace"
sketch4.AttachmentOffset = App.Placement(Vector(0, 0, -12.5), App.Rotation())
add_polygon(sketch4, [(-2.4, -31.8), (31.8, 2.4), (35.7, 2.4), (35.7, -36.3), (-2.4, -36.3)])  # lines 0-4
sketch4.addConstraint(Sketcher.Constraint("Horizontal", 1))
sketch4.addConstraint(Sketcher.Constraint("Vertical", 2))
sketch4.addConstraint(Sketcher.Constraint("Horizontal", 3))
sketch4.addConstraint(Sketcher.Constraint("Vertical", 4))
sketch4.addConstraint(Sketcher.Constraint("Angle", 0, Q("45 deg")))
sketch4.addConstraint(Sketcher.Constraint("DistanceX", -1, 1, 0, 2, Q("31.75 mm")))
sketch4.addConstraint(Sketcher.Constraint("DistanceY", 4, 2, -1, 1, Q("31.75 mm")))
sketch4.addConstraint(Sketcher.Constraint("DistanceX", 3, 2, 3, 1, Q("38.14975 mm")))
sketch4.addConstraint(Sketcher.Constraint("DistanceY", 2, 2, 2, 1, Q("38.703091 mm")))
sketch4.addConstraint(Sketcher.Constraint("DistanceX", 1, 1, 1, 2, Q("3.965446 mm")))
pocket1 = body.newObject("PartDesign::Pocket", "Pocket")
pocket1.Profile = sketch4
pocket1.Type = "ThroughAll"
pocket1.Reversed = True

# Sketch on YZ plane
sketch5 = body.newObject("Sketcher::SketchObject", "Sketch004")
sketch5.AttachmentSupport = (doc.getObject("YZ_Plane"), [""])
sketch5.MapMode = "FlatFace"
sketch5.AttachmentOffset = App.Placement(Vector(0, 0, 34.25), App.Rotation())
sketch5.addGeometry(Part.Circle(Vector(6.5, 11.4, 0), Vector(0, 0, 1), 2.4), False)
sketch5.addConstraint(Sketcher.Constraint("Diameter", 0, Q("4.8 mm")))
sketch5.addConstraint(Sketcher.Constraint("DistanceX", -1, 1, 0, 3, Q("6.5 mm")))
sketch5.addConstraint(Sketcher.Constraint("DistanceY", -1, 1, 0, 3, Q("11.45 mm")))
sketch5.setExpression("Constraints[0]", "Params.sketch5_diameter")
pocket2 = body.newObject("PartDesign::Pocket", "Pocket001")
pocket2.Profile = sketch5
pocket2.setExpression("Length", "Params.pocket2_length")

# Sketch on XY plane
sketch6 = body.newObject("Sketcher::SketchObject", "Sketch005")
sketch6.AttachmentSupport = (doc.getObject("XY_Plane"), [""])
sketch6.MapMode = "FlatFace"
sketch6.AttachmentOffset = App.Placement(Vector(0, 0, -34.25), App.Rotation())
sketch6.addGeometry(Part.Circle(Vector(-11.4, 6.5, 0), Vector(0, 0, 1), 2.4), False)
sketch6.addConstraint(Sketcher.Constraint("Diameter", 0, Q("4.8 mm")))
sketch6.addConstraint(Sketcher.Constraint("DistanceY", -1, 1, 0, 3, Q("6.5 mm")))
sketch6.addConstraint(Sketcher.Constraint("DistanceX", 0, 3, -1, 1, Q("11.45 mm")))
sketch6.setExpression("Constraints[0]", "Params.sketch6_diameter")
pocket3 = body.newObject("PartDesign::Pocket", "Pocket002")
pocket3.Profile = sketch6
pocket3.setExpression("Length", "Params.pocket3_length")
pocket3.Reversed = True

# Sketch on XY plane
sketch7 = body.newObject("Sketcher::SketchObject", "Sketch006")
sketch7.AttachmentSupport = (doc.getObject("XY_Plane"), [""])
sketch7.MapMode = "FlatFace"
sketch7.AttachmentOffset = App.Placement(Vector(0, 0, -9.811165), App.Rotation())
sketch7.addGeometry(Part.Circle(Vector(-11.4, 6.5, 0), Vector(0, 0, 1), 4.2), False)
sketch7.addConstraint(Sketcher.Constraint("Diameter", 0, Q("8.5 mm")))
sketch7.addConstraint(Sketcher.Constraint("DistanceY", -1, 1, 0, 3, Q("6.5 mm")))
sketch7.addConstraint(Sketcher.Constraint("DistanceX", 0, 3, -1, 1, Q("11.45 mm")))
sketch7.setExpression("Constraints[0]", "Params.sketch7_diameter")
pocket4 = body.newObject("PartDesign::Pocket", "Pocket003")
pocket4.Profile = sketch7
pocket4.Type = "TwoLengths"
pocket4.setExpression("Length", "Params.pocket4_length")
pocket4.setExpression("Length2", "Params.pocket4_length2")
pocket4.Reversed = True

# Sketch on YZ plane
sketch8 = body.newObject("Sketcher::SketchObject", "Sketch007")
sketch8.AttachmentSupport = (doc.getObject("YZ_Plane"), [""])
sketch8.MapMode = "FlatFace"
sketch8.AttachmentOffset = App.Placement(Vector(0, 0, 10.093845), App.Rotation())
sketch8.addGeometry(Part.Circle(Vector(6.5, 11.4, 0), Vector(0, 0, 1), 4.2), False)
sketch8.addConstraint(Sketcher.Constraint("Diameter", 0, Q("8.5 mm")))
sketch8.addConstraint(Sketcher.Constraint("DistanceX", -1, 1, 0, 3, Q("6.5 mm")))
sketch8.addConstraint(Sketcher.Constraint("DistanceY", -1, 1, 0, 3, Q("11.45 mm")))
sketch8.setExpression("Constraints[0]", "Params.sketch8_diameter")
pocket5 = body.newObject("PartDesign::Pocket", "Pocket004")
pocket5.Profile = sketch8
pocket5.Type = "TwoLengths"
pocket5.setExpression("Length", "Params.pocket5_length")
pocket5.setExpression("Length2", "Params.pocket5_length2")

doc.recompute()
